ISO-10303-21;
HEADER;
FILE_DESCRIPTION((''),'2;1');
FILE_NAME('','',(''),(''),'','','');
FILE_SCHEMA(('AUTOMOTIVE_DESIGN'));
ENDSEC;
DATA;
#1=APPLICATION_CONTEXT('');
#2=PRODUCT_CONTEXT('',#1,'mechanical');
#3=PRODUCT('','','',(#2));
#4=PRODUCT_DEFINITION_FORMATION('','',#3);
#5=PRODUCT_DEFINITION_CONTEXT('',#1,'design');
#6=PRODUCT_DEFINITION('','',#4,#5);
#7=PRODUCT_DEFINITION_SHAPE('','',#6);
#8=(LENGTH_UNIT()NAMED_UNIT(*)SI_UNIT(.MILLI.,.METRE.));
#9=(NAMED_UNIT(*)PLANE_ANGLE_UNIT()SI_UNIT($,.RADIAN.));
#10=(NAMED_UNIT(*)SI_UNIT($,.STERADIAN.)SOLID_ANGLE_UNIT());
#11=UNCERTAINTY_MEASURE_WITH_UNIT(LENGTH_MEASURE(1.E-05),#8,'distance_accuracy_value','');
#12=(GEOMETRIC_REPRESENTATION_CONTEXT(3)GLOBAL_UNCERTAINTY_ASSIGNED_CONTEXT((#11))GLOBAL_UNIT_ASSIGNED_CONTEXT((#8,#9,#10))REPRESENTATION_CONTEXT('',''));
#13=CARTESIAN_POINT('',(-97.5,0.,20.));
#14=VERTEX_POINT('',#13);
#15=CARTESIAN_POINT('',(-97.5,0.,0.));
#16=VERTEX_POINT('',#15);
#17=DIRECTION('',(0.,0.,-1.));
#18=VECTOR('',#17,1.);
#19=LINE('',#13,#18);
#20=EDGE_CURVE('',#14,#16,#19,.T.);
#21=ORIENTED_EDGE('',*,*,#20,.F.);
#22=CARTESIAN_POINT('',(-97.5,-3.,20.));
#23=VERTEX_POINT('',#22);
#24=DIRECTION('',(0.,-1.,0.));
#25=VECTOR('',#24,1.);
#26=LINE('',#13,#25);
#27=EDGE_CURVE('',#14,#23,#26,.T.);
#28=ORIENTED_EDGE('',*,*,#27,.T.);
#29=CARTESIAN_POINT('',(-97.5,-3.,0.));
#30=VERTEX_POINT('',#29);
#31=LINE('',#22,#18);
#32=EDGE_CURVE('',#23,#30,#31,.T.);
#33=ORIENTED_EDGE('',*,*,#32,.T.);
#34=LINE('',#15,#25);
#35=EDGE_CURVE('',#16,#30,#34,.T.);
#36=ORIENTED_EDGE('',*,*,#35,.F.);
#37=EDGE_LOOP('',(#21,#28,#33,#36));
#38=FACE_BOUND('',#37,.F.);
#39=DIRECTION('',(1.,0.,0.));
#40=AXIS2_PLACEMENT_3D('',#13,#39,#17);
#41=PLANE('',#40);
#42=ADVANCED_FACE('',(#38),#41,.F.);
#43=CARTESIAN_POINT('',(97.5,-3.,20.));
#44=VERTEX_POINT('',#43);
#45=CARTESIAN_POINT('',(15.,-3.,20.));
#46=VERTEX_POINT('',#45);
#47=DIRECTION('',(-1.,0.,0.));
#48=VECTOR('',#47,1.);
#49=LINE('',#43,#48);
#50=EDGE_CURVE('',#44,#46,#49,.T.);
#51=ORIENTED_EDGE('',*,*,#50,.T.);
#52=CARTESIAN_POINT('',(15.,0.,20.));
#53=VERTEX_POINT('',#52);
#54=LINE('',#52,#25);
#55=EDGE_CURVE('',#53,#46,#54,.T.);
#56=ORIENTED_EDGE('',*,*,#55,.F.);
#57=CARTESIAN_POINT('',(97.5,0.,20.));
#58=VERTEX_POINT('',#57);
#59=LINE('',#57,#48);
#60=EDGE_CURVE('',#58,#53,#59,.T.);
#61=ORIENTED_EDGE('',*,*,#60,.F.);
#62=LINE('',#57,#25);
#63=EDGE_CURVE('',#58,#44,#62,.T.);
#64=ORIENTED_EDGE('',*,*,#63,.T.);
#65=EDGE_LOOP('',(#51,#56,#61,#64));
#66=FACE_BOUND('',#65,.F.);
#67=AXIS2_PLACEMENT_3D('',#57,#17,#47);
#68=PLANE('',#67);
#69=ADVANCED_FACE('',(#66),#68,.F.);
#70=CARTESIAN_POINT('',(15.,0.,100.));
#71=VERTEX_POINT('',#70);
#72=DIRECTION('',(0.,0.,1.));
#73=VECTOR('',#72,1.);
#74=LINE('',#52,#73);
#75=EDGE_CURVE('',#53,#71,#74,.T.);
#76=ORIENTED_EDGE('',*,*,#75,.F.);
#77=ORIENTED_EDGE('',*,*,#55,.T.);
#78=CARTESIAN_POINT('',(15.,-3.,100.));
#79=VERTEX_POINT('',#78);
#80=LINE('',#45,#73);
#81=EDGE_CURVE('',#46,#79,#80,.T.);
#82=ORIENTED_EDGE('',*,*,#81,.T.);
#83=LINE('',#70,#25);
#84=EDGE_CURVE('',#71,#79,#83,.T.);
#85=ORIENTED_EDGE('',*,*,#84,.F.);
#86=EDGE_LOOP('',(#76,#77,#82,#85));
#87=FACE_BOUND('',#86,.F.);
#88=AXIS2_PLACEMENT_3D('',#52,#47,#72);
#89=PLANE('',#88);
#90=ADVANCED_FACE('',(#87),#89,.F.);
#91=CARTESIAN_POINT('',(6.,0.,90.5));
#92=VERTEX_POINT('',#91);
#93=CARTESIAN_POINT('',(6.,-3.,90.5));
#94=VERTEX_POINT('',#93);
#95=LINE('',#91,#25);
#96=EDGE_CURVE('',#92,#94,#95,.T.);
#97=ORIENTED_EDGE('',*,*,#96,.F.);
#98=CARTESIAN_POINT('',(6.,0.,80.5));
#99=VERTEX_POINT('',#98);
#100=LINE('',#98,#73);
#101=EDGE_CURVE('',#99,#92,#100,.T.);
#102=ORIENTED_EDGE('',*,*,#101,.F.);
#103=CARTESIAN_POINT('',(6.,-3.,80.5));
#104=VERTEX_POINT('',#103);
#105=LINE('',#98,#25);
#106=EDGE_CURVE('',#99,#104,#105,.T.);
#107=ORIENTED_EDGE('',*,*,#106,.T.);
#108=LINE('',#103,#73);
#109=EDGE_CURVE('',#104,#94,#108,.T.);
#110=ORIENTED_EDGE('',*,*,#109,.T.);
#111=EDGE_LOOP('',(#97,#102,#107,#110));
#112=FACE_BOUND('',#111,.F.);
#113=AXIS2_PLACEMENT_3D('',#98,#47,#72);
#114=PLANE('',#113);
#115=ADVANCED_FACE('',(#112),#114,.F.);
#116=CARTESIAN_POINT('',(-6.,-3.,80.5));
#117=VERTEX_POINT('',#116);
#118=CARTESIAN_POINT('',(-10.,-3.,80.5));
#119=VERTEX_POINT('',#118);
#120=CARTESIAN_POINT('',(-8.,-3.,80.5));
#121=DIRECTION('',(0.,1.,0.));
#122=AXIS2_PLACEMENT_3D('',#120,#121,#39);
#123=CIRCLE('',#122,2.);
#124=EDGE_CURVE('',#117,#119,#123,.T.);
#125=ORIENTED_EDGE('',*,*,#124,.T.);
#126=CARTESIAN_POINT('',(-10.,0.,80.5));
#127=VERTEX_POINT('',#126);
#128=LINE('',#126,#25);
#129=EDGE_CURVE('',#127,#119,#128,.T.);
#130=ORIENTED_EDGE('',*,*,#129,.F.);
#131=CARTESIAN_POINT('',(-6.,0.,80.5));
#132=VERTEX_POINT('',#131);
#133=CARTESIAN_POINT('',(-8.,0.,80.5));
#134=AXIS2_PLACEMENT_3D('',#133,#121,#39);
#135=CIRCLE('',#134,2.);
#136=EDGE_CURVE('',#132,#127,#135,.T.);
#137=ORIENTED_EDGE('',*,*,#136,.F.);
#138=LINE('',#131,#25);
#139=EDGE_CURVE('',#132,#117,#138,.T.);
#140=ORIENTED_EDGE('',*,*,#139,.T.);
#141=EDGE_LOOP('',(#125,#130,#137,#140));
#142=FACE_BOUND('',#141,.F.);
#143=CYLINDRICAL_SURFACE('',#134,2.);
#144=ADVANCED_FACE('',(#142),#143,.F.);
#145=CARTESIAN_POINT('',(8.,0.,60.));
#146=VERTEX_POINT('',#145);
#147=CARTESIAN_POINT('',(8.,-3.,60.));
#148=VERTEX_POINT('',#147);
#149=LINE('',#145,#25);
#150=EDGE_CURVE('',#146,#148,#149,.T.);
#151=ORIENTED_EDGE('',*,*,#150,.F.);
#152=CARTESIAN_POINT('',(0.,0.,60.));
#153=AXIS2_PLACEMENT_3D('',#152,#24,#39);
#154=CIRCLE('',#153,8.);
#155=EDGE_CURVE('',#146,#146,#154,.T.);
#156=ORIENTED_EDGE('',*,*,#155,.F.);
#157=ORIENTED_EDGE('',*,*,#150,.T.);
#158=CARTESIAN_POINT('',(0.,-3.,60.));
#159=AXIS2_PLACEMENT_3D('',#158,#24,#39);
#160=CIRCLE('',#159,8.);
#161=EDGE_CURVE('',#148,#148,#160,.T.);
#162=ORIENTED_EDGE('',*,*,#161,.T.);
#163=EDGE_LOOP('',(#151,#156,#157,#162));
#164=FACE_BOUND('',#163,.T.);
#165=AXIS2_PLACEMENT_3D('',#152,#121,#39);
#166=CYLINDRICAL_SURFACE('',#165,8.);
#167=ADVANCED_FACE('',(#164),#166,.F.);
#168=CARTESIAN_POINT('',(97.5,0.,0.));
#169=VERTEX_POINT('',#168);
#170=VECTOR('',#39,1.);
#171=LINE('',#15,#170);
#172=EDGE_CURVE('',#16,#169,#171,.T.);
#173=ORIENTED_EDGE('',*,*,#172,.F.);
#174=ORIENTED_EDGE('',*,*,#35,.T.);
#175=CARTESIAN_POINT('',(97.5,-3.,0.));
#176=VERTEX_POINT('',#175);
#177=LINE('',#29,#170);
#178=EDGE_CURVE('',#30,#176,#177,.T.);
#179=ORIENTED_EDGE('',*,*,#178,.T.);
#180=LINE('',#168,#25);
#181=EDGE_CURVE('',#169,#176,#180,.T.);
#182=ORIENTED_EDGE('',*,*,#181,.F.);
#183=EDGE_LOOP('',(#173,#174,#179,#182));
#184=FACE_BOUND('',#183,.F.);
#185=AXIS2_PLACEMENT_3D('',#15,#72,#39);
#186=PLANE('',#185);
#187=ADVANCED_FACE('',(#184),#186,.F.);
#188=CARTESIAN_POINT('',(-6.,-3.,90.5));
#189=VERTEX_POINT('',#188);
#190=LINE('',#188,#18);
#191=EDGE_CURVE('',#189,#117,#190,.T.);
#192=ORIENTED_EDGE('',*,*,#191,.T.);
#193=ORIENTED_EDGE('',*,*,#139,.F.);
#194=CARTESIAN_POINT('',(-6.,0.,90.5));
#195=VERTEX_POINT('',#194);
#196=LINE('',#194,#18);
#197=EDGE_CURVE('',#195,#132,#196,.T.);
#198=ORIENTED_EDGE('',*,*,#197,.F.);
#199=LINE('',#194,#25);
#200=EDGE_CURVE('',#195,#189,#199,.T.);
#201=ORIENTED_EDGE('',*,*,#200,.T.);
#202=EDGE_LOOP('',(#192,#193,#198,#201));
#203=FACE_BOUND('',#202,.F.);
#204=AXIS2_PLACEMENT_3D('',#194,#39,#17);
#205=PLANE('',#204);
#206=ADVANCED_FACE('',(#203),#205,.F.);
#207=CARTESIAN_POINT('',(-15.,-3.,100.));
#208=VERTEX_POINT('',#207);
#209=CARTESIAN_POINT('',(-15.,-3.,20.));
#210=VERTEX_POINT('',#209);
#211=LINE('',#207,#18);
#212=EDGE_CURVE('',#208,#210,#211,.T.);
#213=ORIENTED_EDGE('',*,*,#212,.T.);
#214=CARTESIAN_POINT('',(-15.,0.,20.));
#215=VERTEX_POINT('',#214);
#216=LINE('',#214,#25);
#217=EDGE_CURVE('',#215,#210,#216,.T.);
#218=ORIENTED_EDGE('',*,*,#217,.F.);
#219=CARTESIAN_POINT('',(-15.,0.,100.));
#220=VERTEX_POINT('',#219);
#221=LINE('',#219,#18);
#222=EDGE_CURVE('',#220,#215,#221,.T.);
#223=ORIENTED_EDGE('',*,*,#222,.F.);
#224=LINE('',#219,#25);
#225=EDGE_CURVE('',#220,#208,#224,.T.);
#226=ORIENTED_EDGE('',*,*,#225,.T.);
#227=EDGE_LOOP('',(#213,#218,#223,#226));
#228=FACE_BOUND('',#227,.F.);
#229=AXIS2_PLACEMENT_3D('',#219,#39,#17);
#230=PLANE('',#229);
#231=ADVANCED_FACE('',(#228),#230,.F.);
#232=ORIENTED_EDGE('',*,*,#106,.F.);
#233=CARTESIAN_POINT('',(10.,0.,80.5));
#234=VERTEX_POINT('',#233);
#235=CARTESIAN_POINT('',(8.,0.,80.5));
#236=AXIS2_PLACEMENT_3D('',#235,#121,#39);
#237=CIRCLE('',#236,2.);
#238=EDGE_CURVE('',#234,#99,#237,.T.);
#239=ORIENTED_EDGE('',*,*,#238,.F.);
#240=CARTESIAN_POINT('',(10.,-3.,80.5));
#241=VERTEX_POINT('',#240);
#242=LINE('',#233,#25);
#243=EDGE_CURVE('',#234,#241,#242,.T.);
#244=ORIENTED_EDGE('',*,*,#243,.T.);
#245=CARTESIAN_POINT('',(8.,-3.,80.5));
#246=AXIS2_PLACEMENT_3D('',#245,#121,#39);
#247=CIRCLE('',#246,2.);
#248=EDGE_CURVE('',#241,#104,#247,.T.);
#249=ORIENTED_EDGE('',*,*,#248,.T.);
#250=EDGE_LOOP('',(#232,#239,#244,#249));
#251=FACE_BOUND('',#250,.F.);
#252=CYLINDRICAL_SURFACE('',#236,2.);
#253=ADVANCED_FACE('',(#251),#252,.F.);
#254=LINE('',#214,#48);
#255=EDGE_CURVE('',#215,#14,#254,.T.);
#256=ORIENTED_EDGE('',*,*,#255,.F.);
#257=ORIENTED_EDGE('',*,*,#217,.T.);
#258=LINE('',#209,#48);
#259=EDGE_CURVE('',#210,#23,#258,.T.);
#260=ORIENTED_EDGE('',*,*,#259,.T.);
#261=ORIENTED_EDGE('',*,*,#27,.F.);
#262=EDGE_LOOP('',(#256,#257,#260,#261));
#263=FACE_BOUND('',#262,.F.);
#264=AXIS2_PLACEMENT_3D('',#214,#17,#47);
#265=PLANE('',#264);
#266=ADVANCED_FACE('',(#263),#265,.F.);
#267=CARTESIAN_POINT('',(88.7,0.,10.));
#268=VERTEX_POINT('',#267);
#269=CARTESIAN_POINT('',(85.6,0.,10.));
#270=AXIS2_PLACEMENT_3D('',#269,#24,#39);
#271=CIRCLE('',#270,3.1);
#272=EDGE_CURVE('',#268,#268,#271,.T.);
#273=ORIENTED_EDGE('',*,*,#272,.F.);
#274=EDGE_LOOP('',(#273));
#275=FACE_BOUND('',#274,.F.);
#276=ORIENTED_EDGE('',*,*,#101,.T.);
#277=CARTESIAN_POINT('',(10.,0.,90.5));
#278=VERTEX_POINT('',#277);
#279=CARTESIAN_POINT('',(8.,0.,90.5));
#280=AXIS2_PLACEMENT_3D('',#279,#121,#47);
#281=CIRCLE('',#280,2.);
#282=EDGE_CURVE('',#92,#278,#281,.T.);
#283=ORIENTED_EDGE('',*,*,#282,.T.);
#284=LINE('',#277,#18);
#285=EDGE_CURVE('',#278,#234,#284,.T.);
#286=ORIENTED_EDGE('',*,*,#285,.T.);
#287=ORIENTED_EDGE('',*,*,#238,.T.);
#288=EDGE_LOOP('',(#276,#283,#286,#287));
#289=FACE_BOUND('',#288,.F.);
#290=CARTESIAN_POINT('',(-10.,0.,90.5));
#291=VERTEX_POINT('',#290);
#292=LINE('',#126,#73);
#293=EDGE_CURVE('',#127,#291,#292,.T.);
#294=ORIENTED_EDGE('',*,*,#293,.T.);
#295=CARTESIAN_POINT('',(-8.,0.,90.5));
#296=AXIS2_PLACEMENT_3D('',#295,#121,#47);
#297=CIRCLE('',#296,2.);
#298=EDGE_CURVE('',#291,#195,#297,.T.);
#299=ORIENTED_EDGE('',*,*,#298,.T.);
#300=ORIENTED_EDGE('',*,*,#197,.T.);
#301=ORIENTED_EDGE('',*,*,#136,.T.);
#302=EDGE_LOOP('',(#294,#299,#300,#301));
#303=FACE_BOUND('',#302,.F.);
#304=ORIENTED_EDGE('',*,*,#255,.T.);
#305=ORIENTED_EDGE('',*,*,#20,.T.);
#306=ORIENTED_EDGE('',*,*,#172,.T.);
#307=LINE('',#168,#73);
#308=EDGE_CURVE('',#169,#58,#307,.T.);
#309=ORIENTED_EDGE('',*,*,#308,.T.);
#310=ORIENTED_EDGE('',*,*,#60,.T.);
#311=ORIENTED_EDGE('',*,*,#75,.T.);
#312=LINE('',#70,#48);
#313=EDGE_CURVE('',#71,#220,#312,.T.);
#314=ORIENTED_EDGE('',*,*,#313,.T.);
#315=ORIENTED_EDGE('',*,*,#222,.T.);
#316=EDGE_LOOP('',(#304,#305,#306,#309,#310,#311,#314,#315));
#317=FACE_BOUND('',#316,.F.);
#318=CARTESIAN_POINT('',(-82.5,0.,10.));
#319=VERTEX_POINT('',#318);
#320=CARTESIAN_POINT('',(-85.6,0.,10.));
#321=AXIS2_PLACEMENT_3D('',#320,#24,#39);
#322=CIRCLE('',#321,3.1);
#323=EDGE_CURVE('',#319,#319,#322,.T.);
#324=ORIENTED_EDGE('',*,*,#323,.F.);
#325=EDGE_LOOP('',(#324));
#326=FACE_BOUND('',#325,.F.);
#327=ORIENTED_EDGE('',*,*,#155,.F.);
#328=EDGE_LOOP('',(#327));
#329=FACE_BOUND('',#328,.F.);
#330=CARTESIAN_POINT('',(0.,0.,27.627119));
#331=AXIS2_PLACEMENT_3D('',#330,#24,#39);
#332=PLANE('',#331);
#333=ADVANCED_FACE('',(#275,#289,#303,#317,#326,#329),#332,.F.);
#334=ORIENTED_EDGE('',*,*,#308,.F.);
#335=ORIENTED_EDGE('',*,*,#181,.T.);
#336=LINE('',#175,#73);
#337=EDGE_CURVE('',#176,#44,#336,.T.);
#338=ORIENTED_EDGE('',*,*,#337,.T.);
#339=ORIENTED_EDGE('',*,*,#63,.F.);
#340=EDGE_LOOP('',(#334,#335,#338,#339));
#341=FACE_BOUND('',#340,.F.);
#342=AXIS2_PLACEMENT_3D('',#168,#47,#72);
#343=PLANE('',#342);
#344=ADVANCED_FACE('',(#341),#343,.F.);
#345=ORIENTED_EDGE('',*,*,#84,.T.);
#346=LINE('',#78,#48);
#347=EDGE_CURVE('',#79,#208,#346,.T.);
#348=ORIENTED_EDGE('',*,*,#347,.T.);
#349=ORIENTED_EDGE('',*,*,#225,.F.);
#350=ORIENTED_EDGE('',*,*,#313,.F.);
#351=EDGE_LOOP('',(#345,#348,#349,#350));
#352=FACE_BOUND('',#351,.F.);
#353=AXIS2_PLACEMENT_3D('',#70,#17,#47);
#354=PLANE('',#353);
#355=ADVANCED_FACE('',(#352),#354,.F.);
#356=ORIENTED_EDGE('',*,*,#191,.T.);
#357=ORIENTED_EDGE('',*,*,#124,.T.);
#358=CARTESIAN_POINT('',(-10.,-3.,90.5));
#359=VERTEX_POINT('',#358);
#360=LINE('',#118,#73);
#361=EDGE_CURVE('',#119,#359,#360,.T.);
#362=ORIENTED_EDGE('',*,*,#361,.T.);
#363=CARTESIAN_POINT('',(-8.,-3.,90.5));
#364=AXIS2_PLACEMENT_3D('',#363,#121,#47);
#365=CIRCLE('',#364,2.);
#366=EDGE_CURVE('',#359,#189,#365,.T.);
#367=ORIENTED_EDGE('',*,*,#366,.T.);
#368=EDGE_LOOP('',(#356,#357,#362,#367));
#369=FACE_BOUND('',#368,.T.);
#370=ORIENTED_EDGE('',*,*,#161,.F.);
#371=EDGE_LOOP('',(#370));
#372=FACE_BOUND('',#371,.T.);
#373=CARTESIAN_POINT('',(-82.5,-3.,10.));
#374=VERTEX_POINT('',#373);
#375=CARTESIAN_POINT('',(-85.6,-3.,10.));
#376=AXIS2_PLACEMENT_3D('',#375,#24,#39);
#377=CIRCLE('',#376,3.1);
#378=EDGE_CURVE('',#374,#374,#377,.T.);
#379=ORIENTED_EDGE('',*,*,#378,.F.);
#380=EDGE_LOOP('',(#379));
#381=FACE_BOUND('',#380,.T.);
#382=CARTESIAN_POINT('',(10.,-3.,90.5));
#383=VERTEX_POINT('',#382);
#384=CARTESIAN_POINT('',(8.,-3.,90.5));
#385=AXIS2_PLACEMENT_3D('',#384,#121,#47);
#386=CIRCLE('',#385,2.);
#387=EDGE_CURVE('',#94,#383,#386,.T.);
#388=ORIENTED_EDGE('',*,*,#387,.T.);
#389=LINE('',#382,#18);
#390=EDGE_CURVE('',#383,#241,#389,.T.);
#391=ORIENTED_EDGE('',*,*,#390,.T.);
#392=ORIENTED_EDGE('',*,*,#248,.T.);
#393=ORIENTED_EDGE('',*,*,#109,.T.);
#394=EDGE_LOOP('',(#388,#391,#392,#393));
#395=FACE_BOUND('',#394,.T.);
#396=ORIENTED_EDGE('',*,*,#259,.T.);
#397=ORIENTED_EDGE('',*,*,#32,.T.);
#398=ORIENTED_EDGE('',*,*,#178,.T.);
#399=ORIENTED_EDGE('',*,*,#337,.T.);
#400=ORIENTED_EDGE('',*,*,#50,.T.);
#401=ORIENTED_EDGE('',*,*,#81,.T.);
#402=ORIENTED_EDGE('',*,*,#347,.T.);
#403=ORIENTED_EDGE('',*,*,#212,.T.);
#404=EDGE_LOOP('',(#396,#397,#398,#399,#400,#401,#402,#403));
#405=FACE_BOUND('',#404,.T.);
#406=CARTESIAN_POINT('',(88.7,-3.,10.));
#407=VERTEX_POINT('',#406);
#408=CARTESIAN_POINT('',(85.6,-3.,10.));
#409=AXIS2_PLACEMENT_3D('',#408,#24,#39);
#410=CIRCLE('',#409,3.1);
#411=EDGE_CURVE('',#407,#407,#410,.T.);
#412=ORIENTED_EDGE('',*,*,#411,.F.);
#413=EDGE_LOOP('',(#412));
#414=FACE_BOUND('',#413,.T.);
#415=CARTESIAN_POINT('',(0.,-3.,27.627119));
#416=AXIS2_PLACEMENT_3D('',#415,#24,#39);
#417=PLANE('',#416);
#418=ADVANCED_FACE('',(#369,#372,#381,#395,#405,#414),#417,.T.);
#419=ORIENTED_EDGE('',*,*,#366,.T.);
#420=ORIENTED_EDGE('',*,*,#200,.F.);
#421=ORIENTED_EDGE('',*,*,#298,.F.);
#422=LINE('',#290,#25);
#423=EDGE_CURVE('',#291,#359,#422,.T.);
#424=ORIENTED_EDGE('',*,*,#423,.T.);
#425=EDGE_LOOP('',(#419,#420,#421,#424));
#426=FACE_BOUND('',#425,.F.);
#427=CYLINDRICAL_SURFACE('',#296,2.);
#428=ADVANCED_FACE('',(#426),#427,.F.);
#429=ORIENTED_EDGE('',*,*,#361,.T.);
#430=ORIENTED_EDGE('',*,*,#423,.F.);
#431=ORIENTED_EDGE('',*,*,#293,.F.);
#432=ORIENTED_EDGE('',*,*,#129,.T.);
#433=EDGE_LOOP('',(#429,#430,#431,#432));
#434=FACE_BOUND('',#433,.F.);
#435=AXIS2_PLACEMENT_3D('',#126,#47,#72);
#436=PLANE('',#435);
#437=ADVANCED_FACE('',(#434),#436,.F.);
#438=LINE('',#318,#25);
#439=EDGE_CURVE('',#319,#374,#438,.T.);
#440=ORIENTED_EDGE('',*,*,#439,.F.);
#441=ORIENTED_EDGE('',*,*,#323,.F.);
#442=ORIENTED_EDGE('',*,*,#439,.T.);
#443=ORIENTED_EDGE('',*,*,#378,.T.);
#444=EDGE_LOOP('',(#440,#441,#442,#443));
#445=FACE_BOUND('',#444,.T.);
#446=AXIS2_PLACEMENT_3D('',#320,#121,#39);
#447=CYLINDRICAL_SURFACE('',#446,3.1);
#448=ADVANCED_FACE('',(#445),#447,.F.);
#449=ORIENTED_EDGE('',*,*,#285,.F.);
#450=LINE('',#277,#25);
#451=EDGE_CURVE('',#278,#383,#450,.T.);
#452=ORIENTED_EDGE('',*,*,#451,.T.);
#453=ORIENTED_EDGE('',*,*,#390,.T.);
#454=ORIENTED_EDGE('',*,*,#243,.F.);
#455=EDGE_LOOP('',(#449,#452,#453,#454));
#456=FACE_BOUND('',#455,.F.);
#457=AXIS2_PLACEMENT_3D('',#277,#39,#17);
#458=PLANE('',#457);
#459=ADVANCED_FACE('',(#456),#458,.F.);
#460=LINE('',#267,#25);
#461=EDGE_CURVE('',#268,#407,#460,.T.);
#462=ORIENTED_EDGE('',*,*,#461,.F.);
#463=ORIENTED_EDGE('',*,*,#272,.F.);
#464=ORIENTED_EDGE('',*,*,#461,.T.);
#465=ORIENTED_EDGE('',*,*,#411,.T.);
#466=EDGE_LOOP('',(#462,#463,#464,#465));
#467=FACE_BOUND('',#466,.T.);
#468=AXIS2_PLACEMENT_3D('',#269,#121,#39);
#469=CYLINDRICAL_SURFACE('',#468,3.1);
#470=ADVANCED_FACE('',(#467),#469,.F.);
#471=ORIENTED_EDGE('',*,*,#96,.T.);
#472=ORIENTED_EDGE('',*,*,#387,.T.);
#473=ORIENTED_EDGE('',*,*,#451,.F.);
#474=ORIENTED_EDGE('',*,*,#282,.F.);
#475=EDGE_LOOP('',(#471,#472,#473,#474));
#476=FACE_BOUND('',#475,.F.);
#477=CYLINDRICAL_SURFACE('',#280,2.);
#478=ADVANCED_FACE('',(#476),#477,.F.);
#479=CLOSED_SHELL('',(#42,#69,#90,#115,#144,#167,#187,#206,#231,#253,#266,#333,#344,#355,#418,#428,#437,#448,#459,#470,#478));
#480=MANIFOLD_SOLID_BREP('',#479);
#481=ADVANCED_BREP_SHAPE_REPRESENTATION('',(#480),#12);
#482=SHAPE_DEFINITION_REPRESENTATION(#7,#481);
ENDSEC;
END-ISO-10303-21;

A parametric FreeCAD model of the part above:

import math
import FreeCAD as App
import Part
import Sketcher
from FreeCAD import Vector
Q = App.Units.Quantity

doc = App.newDocument("Part")
body = doc.addObject("PartDesign::Body", "Body")

# Sketch on XZ plane
sketch1 = body.newObject("Sketcher::SketchObject", "Sketch")
sketch1.AttachmentSupport = (doc.getObject("XZ_Plane"), [""])
sketch1.MapMode = "FlatFace"
sketch1.addGeometry([
    Part.LineSegment(Vector(-97.5, 0, 0), Vector(97.5, 0, 0)),  # 0
    Part.LineSegment(Vector(97.5, 0, 0), Vector(97.5, 20, 0)),  # 1
    Part.LineSegment(Vector(97.5, 20, 0), Vector(15, 20, 0)),  # 2
    Part.LineSegment(Vector(15, 20, 0), Vector(15, 100, 0)),  # 3
    Part.LineSegment(Vector(15, 100, 0), Vector(-15, 100, 0)),  # 4
    Part.LineSegment(Vector(-15, 100, 0), Vector(-15, 20, 0)),  # 5
    Part.LineSegment(Vector(-15, 20, 0), Vector(-97.5, 20, 0)),  # 6
    Part.LineSegment(Vector(-97.5, 20, 0), Vector(-97.5, 0, 0)),  # 7
    Part.Circle(Vector(-85.6, 10, 0), Vector(0, 0, 1), 3.1),  # 8
    Part.Circle(Vector(85.6, 10, 0), Vector(0, 0, 1), 3.1),  # 9
    Part.ArcOfCircle(Part.Circle(Vector(-8, 80.5, 0), Vector(0, 0, 1), 2), math.radians(180), math.radians(360)),  # 10
    Part.LineSegment(Vector(-10, 80.5, 0), Vector(-10, 90.5, 0)),  # 11
    Part.ArcOfCircle(Part.Circle(Vector(-8, 90.5, 0), Vector(0, 0, 1), 2), math.radians(0), math.radians(180)),  # 12
    Part.LineSegment(Vector(-6, 90.5, 0), Vector(-6, 80.5, 0)),  # 13
    Part.Circle(Vector(0, 60, 0), Vector(0, 0, 1), 8),  # 14
    Part.LineSegment(Vector(10, 90.5, 0), Vector(10, 80.5, 0)),  # 15
    Part.ArcOfCircle(Part.Circle(Vector(8, 80.5, 0), Vector(0, 0, 1), 2), math.radians(180), math.radians(360)),  # 16
    Part.LineSegment(Vector(6, 80.5, 0), Vector(6, 90.5, 0)),  # 17
    Part.ArcOfCircle(Part.Circle(Vector(8, 90.5, 0), Vector(0, 0, 1), 2), math.radians(0), math.radians(180)),  # 18
], False)
sketch1.addConstraint([
    Sketcher.Constraint("Coincident", 0, 2, 1, 1),
    Sketcher.Constraint("Coincident", 1, 2, 2, 1),
    Sketcher.Constraint("Coincident", 2, 2, 3, 1),
    Sketcher.Constraint("Coincident", 3, 2, 4, 1),
    Sketcher.Constraint("Coincident", 4, 2, 5, 1),
    Sketcher.Constraint("Coincident", 5, 2, 6, 1),
    Sketcher.Constraint("Coincident", 6, 2, 7, 1),
    Sketcher.Constraint("Coincident", 7, 2, 0, 1),
    Sketcher.Constraint("Tangent", 10, 1, 11, 1),
    Sketcher.Constraint("Tangent", 11, 2, 12, 2),
    Sketcher.Constraint("Tangent", 12, 1, 13, 1),
    Sketcher.Constraint("Tangent", 13, 2, 10, 2),
    Sketcher.Constraint("Tangent", 15, 2, 16, 2),
    Sketcher.Constraint("Tangent", 16, 1, 17, 1),
    Sketcher.Constraint("Tangent", 17, 2, 18, 2),
    Sketcher.Constraint("Tangent", 18, 1, 15, 1),
    Sketcher.Constraint("Horizontal", 0),
    Sketcher.Constraint("Vertical", 1),
    Sketcher.Constraint("Horizontal", 2),
    Sketcher.Constraint("Vertical", 3),
    Sketcher.Constraint("Horizontal", 4),
    Sketcher.Constraint("Vertical", 5),
    Sketcher.Constraint("Horizontal", 6),
    Sketcher.Constraint("Vertical", 7),
    Sketcher.Constraint("Vertical", 11),
    Sketcher.Constraint("Vertical", 13),
    Sketcher.Constraint("Vertical", 15),
    Sketcher.Constraint("Vertical", 17),
    Sketcher.Constraint("Equal", 8, 9),
    Sketcher.Constraint("Equal", 12, 16),
    Sketcher.Constraint("Symmetric", 0, 2, 7, 2, -1, 1),
    Sketcher.Constraint("Symmetric", 8, 3, 9, 3, -2),
    Sketcher.Constraint("Symmetric", 10, 3, 16, 3, -2),
    Sketcher.Constraint("Symmetric", 2, 2, 5, 2, -2),
    Sketcher.Constraint("PointOnObject", 14, 3, -2),
    Sketcher.Constraint("Horizontal", 12, 3, 18, 3),
    Sketcher.Constraint("Diameter", 14, Q("16 mm")),
    Sketcher.Constraint("Radius", 10, Q("2 mm")),
    Sketcher.Constraint("Diameter", 8, Q("6.2 mm")),
    Sketcher.Constraint("DistanceX", 0, 1, 0, 2, Q("195 mm")),
    Sketcher.Constraint("DistanceX", 4, 2, 4, 1, Q("30 mm")),
    Sketcher.Constraint("DistanceY", 1, 1, 1, 2, Q("20 mm")),
    Sketcher.Constraint("DistanceY", 3, 1, 3, 2, Q("80 mm")),
    Sketcher.Constraint("DistanceY", 11, 1, 11, 2, Q("10 mm")),
    Sketcher.Constraint("DistanceY", -1, 1, 8, 3, Q("10 mm")),
    Sketcher.Constraint("DistanceX", 10, 3, -1, 1, Q("8 mm")),
    Sketcher.Constraint("DistanceY", -1, 1, 14, 3, Q("60 mm")),
    Sketcher.Constraint("DistanceX", 8, 3, -1, 1, Q("85.6 mm")),
    Sketcher.Constraint("DistanceY", -1, 1, 10, 3, Q("80.5 mm")),
])
pad1 = body.newObject("PartDesign::Pad", "Pad")
pad1.Profile = sketch1
pad1.Length = 3

doc.recompute()
